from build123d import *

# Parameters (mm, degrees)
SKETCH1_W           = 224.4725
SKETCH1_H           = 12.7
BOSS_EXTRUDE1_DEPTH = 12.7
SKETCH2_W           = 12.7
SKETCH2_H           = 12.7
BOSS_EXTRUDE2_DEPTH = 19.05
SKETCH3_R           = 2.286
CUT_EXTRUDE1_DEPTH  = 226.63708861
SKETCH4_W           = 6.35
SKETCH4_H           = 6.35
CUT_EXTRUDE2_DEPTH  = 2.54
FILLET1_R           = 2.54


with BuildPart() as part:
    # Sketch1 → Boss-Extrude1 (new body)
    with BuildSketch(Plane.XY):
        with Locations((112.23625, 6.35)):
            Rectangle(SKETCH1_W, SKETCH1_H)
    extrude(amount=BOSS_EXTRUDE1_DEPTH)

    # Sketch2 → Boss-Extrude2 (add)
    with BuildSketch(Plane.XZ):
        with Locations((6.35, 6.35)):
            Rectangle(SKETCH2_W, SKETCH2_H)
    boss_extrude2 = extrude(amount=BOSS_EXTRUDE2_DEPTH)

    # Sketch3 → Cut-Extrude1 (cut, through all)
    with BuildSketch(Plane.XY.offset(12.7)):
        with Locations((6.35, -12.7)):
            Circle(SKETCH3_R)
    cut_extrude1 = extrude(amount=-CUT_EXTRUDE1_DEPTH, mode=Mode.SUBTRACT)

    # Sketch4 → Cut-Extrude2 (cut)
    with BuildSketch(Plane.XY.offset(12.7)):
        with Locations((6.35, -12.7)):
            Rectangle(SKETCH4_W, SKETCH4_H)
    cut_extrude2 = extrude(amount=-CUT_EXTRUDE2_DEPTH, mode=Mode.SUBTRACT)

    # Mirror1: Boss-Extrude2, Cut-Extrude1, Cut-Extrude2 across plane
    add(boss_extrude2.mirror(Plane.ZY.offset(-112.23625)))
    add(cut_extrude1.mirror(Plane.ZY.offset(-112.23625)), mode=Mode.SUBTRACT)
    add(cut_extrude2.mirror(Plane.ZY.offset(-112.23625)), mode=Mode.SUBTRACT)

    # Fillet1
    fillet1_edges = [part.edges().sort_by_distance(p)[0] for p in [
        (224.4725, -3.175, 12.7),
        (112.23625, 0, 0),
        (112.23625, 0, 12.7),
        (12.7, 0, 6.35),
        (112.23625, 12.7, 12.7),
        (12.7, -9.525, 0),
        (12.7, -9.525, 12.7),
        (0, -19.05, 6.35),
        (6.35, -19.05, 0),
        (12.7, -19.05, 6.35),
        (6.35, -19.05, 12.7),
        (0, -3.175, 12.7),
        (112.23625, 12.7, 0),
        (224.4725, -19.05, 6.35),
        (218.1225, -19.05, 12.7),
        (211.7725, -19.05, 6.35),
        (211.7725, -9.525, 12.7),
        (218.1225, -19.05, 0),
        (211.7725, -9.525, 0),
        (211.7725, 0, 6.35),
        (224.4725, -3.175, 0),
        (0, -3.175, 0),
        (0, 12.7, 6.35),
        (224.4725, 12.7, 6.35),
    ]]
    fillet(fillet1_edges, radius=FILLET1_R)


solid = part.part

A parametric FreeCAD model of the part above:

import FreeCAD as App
import Part
import Sketcher
Q = App.Units.Quantity


def edges_at(feature, points):
    """Names of the edges that pass closest to the given points."""
    edges = feature.Shape.Edges
    near = lambda p: min(range(len(edges)), key=lambda i: edges[i].distToShape(Part.Vertex(*p))[0])
    return sorted({f"Edge{near(p) + 1}" for p in points})

doc = App.newDocument("Part")
params = doc.addObject("Spreadsheet::Sheet", "Params")
for row, (alias, value) in enumerate([
    ("sketch1_height", "0.5 in"),
    ("pad1_length", "0.5 in"),
    ("sketch2_width", "0.5 in"),
    ("pad2_length", "0.75 in"),
    ("sketch3_diameter", "0.18 in"),
    ("sketch4_width", "0.25 in"),
    ("pocket2_length", "0.1 in"),
    ("fillet_radius", "0.1 in"),
], start=1):
    params.set(f"A{row}", alias)
    params.set(f"B{row}", "=" + value)
    params.setAlias(f"B{row}", alias)

body = doc.addObject("PartDesign::Body", "Body")

# Sketch on XY plane
sketch1 = doc.addObject("Sketcher::SketchObject", "Sketch")
body.addObject(sketch1)
sketch1.AttachmentSupport = (doc.XY_Plane, [""])
sketch1.MapMode = "FlatFace"
sketch1.addGeometry([
    Part.LineSegment(App.Vector(0, 13, 0), App.Vector(0, 0, 0)),
    Part.LineSegment(App.Vector(0, 0, 0), App.Vector(224, 0, 0)),
    Part.LineSegment(App.Vector(224, 0, 0), App.Vector(224, 13, 0)),
    Part.LineSegment(App.Vector(224, 13, 0), App.Vector(0, 13, 0)),
], False)
sketch1.addConstraint([
    Sketcher.Constraint("Coincident", 0, 2, 1, 1),
    Sketcher.Constraint("Coincident", 1, 2, 2, 1),
    Sketcher.Constraint("Coincident", 2, 2, 3, 1),
    Sketcher.Constraint("Coincident", 3, 2, 0, 1),
    Sketcher.Constraint("Vertical", 0),
    Sketcher.Constraint("Horizontal", 1),
    Sketcher.Constraint("Vertical", 2),
    Sketcher.Constraint("Horizontal", 3),
    Sketcher.Constraint("Coincident", 0, 2, -1, 1),
    Sketcher.Constraint("DistanceY", 0, 2, 0, 1, Q("0.5 in")),
    Sketcher.Constraint("DistanceX", 1, 1, 1, 2, Q("8.8375 in")),
])
sketch1.setExpression("Constraints[9]", "Params.sketch1_height")
pad1 = doc.addObject("PartDesign::Pad", "Pad")
body.addObject(pad1)
pad1.Profile = sketch1
pad1.setExpression("Length", "Params.pad1_length")

# Sketch on XZ plane
sketch2 = doc.addObject("Sketcher::SketchObject", "Sketch001")
body.addObject(sketch2)
sketch2.AttachmentSupport = (doc.XZ_Plane, [""])
sketch2.MapMode = "FlatFace"
sketch2.addGeometry([
    Part.LineSegment(App.Vector(0, 13, 0), App.Vector(0, 0, 0)),
    Part.LineSegment(App.Vector(0, 0, 0), App.Vector(13, 0, 0)),
    Part.LineSegment(App.Vector(13, 0, 0), App.Vector(13, 13, 0)),
    Part.LineSegment(App.Vector(13, 13, 0), App.Vector(0, 13, 0)),
], False)
sketch2.addConstraint([
    Sketcher.Constraint("Coincident", 0, 2, 1, 1),
    Sketcher.Constraint("Coincident", 1, 2, 2, 1),
    Sketcher.Constraint("Coincident", 2, 2, 3, 1),
    Sketcher.Constraint("Coincident", 3, 2, 0, 1),
    Sketcher.Constraint("Vertical", 0),
    Sketcher.Constraint("Horizontal", 1),
    Sketcher.Constraint("Vertical", 2),
    Sketcher.Constraint("Horizontal", 3),
    Sketcher.Constraint("Coincident", 0, 2, -1, 1),
    Sketcher.Constraint("Equal", 3, 0),
    Sketcher.Constraint("DistanceX", 1, 1, 1, 2, Q("0.5 in")),
])
sketch2.setExpression("Constraints[10]", "Params.sketch2_width")
pad2 = doc.addObject("PartDesign::Pad", "Pad001")
body.addObject(pad2)
pad2.Profile = sketch2
pad2.setExpression("Length", "Params.pad2_length")

# Sketch on XY plane
sketch3 = doc.addObject("Sketcher::SketchObject", "Sketch002")
body.addObject(sketch3)
sketch3.AttachmentSupport = (doc.XY_Plane, [""])
sketch3.MapMode = "FlatFace"
sketch3.AttachmentOffset = App.Placement(App.Vector(0, 0, 0.5 * 25.4), App.Rotation())
sketch3.addGeometry(Part.Circle(App.Vector(6.3, -12.7, 0), App.Vector(0, 0, 1), 2.3), False)
sketch3.addConstraint([
    Sketcher.Constraint("Diameter", 0, Q("0.18 in")),
    Sketcher.Constraint("DistanceY", 0, 3, -1, 1, Q("0.5 in")),
    Sketcher.Constraint("DistanceX", -1, 1, 0, 3, Q("0.25 in")),
])
sketch3.setExpression("Constraints[0]", "Params.sketch3_diameter")
pocket1 = doc.addObject("PartDesign::Pocket", "Pocket")
body.addObject(pocket1)
pocket1.Profile = sketch3
pocket1.Type = "ThroughAll"

# Sketch on XY plane
sketch4 = doc.addObject("Sketcher::SketchObject", "Sketch003")
body.addObject(sketch4)
sketch4.AttachmentSupport = (doc.XY_Plane, [""])
sketch4.MapMode = "FlatFace"
sketch4.AttachmentOffset = App.Placement(App.Vector(0, 0, 0.5 * 25.4), App.Rotation())
sketch4.addGeometry([
    Part.LineSegment(App.Vector(3, -10, 0), App.Vector(3, -16, 0)),
    Part.LineSegment(App.Vector(3, -16, 0), App.Vector(10, -16, 0)),
    Part.LineSegment(App.Vector(10, -16, 0), App.Vector(10, -10, 0)),
    Part.LineSegment(App.Vector(10, -10, 0), App.Vector(3, -10, 0)),
], False)
sketch4.addConstraint([
    Sketcher.Constraint("Coincident", 0, 2, 1, 1),
    Sketcher.Constraint("Coincident", 1, 2, 2, 1),
    Sketcher.Constraint("Coincident", 2, 2, 3, 1),
    Sketcher.Constraint("Coincident", 3, 2, 0, 1),
    Sketcher.Constraint("Vertical", 0),
    Sketcher.Constraint("Horizontal", 1),
    Sketcher.Constraint("Vertical", 2),
    Sketcher.Constraint("Horizontal", 3),
    Sketcher.Constraint("Equal", 3, 0),
    Sketcher.Constraint("DistanceX", 1, 1, 1, 2, Q("0.25 in")),
    Sketcher.Constraint("DistanceX", -1, 1, 0, 2, Q("0.125 in")),
    Sketcher.Constraint("DistanceY", 0, 2, -1, 1, Q("0.625 in")),
])
sketch4.setExpression("Constraints[9]", "Params.sketch4_width")
pocket2 = doc.addObject("PartDesign::Pocket", "Pocket001")
body.addObject(pocket2)
pocket2.Profile = sketch4
pocket2.setExpression("Length", "Params.pocket2_length")
doc.recompute()

datumplane = doc.addObject("PartDesign::Plane", "DatumPlane")
body.addObject(datumplane)
datumplane.AttachmentSupport = (doc.YZ_Plane, [""])
datumplane.MapMode = "FlatFace"
datumplane.AttachmentOffset = App.Placement(App.Vector(0, 0, 112.23625), App.Rotation())
mirrored = doc.addObject("PartDesign::Mirrored", "Mirrored")
body.addObject(mirrored)
mirrored.Originals = [pad2, pocket1, pocket2]
mirrored.MirrorPlane = (datumplane, [""])
body.Tip = mirrored
doc.recompute()

fillet = doc.addObject("PartDesign::Fillet", "Fillet")
body.addObject(fillet)
fillet.Base = (mirrored, edges_at(mirrored, [
    (224.472, -3.175, 12.7),
    (112.236, 0, 0),
    (112.236, 0, 12.7),
    (12.7, 0, 6.35),
    (112.236, 12.7, 12.7),
    (12.7, -9.525, 0),
    (12.7, -9.525, 12.7),
    (0, -19.05, 6.35),
    (6.35, -19.05, 0),
    (12.7, -19.05, 6.35),
    (6.35, -19.05, 12.7),
    (0, -3.175, 12.7),
    (112.236, 12.7, 0),
    (224.472, -19.05, 6.35),
    (218.123, -19.05, 12.7),
    (211.773, -19.05, 6.35),
    (211.773, -9.525, 12.7),
    (218.123, -19.05, 0),
    (211.773, -9.525, 0),
    (211.773, 0, 6.35),
    (224.472, -3.175, 0),
    (0, -3.175, 0),
    (0, 12.7, 6.35),
    (224.472, 12.7, 6.35),
]))
fillet.setExpression("Radius", "Params.fillet_radius")

doc.recompute()
